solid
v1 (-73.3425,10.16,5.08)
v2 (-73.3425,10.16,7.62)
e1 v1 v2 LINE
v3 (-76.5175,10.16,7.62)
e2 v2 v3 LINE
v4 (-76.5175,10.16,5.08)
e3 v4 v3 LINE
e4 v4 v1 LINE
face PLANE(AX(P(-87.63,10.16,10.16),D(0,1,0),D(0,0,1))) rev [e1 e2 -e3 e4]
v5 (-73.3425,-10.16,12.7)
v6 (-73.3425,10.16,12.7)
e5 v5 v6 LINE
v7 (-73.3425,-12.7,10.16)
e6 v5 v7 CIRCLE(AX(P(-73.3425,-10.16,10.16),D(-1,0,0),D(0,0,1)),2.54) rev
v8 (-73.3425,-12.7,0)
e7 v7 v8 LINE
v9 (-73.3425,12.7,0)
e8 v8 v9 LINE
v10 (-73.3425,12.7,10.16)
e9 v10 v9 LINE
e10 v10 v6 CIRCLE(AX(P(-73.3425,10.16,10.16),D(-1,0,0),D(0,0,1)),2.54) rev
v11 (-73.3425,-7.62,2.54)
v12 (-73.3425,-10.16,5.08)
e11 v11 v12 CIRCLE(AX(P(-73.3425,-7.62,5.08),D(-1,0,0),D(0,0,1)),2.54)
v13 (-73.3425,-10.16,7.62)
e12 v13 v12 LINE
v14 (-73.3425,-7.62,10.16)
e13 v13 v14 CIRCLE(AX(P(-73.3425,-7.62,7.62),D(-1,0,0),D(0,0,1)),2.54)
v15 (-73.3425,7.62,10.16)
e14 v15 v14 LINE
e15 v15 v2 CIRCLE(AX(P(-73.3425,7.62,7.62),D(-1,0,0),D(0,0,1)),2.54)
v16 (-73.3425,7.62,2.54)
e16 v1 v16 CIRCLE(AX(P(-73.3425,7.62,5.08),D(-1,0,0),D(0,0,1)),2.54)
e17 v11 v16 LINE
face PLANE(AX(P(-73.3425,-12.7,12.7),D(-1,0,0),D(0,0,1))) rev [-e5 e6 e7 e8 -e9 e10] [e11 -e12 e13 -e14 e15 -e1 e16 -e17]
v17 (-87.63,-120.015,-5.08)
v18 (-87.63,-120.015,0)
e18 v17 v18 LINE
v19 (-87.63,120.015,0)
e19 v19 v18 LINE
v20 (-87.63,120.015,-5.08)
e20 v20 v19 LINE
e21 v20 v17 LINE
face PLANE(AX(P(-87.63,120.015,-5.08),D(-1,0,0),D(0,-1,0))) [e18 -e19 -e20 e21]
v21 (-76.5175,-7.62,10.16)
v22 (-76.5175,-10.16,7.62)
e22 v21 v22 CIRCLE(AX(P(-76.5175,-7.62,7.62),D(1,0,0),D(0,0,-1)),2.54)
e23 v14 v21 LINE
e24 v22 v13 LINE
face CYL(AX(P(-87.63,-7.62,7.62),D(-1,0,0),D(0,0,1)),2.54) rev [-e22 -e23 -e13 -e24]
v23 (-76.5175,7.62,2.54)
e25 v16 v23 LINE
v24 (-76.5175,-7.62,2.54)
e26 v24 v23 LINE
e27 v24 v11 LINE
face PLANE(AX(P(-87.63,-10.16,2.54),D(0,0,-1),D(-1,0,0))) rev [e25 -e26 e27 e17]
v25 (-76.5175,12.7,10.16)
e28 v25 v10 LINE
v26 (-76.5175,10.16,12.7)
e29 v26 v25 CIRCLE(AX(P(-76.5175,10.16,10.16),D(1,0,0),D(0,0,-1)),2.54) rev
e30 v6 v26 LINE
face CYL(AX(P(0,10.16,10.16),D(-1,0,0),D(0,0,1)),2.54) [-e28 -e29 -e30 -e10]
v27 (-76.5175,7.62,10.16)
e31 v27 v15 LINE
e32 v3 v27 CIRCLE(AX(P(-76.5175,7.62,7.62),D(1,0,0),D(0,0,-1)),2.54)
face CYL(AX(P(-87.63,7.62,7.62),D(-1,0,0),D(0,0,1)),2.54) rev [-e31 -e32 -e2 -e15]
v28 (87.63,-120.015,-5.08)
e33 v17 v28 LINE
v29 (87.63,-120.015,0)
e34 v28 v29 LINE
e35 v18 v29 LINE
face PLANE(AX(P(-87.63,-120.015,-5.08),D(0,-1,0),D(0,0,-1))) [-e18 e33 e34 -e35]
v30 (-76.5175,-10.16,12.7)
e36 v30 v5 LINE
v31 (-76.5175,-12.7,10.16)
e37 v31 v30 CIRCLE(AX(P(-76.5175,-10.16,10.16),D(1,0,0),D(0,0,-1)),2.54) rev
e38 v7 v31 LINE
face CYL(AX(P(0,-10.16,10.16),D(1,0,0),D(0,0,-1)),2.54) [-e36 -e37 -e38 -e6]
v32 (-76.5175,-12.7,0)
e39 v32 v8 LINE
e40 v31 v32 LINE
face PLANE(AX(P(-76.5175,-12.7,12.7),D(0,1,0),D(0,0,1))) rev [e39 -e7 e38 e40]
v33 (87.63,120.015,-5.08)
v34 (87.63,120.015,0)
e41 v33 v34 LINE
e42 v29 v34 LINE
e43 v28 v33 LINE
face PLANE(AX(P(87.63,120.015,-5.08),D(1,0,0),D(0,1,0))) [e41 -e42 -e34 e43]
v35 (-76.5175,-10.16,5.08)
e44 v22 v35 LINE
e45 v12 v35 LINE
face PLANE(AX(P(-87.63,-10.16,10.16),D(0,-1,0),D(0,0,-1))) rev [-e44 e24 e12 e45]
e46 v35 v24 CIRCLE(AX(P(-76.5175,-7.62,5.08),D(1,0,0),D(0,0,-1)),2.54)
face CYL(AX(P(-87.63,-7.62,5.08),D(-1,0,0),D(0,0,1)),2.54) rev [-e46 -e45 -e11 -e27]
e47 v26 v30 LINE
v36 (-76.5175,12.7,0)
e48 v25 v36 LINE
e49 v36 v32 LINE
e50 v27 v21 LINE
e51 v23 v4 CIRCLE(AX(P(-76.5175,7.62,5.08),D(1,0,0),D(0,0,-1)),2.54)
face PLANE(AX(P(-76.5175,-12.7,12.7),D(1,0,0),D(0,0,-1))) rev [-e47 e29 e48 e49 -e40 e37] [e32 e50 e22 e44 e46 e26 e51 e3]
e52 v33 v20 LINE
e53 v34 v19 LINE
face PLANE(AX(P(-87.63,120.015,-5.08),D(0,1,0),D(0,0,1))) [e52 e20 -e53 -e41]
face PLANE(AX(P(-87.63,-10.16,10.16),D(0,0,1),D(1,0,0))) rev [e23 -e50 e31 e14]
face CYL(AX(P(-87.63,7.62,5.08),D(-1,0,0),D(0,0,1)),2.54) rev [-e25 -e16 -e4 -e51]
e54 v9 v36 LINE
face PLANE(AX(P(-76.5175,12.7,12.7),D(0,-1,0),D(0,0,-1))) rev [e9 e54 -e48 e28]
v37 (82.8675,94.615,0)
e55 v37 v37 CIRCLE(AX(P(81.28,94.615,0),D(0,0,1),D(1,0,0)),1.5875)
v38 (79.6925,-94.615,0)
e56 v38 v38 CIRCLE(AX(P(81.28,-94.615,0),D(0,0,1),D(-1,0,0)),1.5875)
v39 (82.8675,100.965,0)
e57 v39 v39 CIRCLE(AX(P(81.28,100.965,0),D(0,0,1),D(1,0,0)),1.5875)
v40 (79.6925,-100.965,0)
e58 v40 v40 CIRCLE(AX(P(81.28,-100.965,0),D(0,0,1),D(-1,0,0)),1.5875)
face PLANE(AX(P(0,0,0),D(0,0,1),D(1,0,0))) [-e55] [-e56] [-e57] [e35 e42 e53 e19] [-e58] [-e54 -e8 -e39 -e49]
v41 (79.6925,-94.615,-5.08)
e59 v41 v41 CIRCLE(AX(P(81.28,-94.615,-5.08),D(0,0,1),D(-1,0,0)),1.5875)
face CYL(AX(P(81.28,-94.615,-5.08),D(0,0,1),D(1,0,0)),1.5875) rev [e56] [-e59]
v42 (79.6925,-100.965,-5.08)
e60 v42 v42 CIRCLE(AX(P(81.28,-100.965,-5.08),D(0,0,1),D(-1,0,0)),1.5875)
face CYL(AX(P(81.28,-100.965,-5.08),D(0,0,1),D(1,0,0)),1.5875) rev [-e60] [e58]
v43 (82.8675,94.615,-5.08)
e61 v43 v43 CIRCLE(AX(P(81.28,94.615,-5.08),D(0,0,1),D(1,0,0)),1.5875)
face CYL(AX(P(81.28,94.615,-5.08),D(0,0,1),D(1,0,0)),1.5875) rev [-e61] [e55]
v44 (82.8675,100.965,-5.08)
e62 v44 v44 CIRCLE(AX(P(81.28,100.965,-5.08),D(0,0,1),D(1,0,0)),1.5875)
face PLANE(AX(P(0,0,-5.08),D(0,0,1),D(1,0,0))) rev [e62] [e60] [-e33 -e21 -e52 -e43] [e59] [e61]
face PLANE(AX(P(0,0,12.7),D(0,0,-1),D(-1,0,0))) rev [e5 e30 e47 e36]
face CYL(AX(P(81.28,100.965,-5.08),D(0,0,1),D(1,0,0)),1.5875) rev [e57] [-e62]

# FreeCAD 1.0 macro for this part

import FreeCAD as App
import Part
import Sketcher
from FreeCAD import Vector
Q = App.Units.Quantity


def edges_at(feature, points):
    """Names of the edges that pass closest to the given points."""
    edges = feature.Shape.Edges
    near = lambda p: min(range(len(edges)), key=lambda i: edges[i].distToShape(Part.Vertex(*p))[0])
    return sorted({f"Edge{near(p) + 1}" for p in points})

doc = App.newDocument("Part")
body = doc.addObject("PartDesign::Body", "Body")

sketch1 = body.newObject("Sketcher::SketchObject", "Sketch")
sketch1.AttachmentSupport = (doc.getObject("XY_Plane"), [""])
sketch1.MapMode = "FlatFace"
sketch1.addGeometry(Part.LineSegment(Vector(-88, 120, 0), Vector(-88, -120, 0)), False)
sketch1.addGeometry(Part.LineSegment(Vector(-88, -120, 0), Vector(88, -120, 0)), False)
sketch1.addGeometry(Part.LineSegment(Vector(88, -120, 0), Vector(88, 120, 0)), False)
sketch1.addGeometry(Part.LineSegment(Vector(88, 120, 0), Vector(-88, 120, 0)), False)
sketch1.addConstraint(Sketcher.Constraint("Coincident", 0, 2, 1, 1))
sketch1.addConstraint(Sketcher.Constraint("Coincident", 1, 2, 2, 1))
sketch1.addConstraint(Sketcher.Constraint("Coincident", 2, 2, 3, 1))
sketch1.addConstraint(Sketcher.Constraint("Coincident", 3, 2, 0, 1))
sketch1.addConstraint(Sketcher.Constraint("Vertical", 0))
sketch1.addConstraint(Sketcher.Constraint("Horizontal", 1))
sketch1.addConstraint(Sketcher.Constraint("Vertical", 2))
sketch1.addConstraint(Sketcher.Constraint("Horizontal", 3))
sketch1.addConstraint(Sketcher.Constraint("Symmetric", 0, 2, 2, 2, -1, 1))
sketch1.addConstraint(Sketcher.Constraint("DistanceX", 1, 1, 1, 2, Q("6.9 in")))
sketch1.addConstraint(Sketcher.Constraint("DistanceY", 0, 2, 0, 1, Q("9.45 in")))
pad1 = body.newObject("PartDesign::Pad", "Pad")
pad1.Profile = sketch1
pad1.Length = Q("0.2 in")
pad1.Reversed = True

sketch2 = body.newObject("Sketcher::SketchObject", "Sketch001")
sketch2.AttachmentSupport = (doc.getObject("XY_Plane"), [""])
sketch2.MapMode = "FlatFace"
sketch2.addGeometry(Part.Circle(Vector(81.3, 101, 0), Vector(0, 0, 1), 1.6), False)
sketch2.addGeometry(Part.Circle(Vector(81.3, 94.6, 0), Vector(0, 0, 1), 1.6), False)
sketch2.addGeometry(Part.Circle(Vector(81.3, -94.6, 0), Vector(0, 0, 1), 1.6), False)
sketch2.addGeometry(Part.Circle(Vector(81.3, -101, 0), Vector(0, 0, 1), 1.6), False)
sketch2.addConstraint(Sketcher.Constraint("Equal", 0, 1))
sketch2.addConstraint(Sketcher.Constraint("Equal", 1, 2))
sketch2.addConstraint(Sketcher.Constraint("Equal", 2, 3))
sketch2.addConstraint(Sketcher.Constraint("Symmetric", 1, 3, 2, 3, -1))
sketch2.addConstraint(Sketcher.Constraint("Symmetric", 0, 3, 3, 3, -1))
sketch2.addConstraint(Sketcher.Constraint("Vertical", 0, 3, 1, 3))
sketch2.addConstraint(Sketcher.Constraint("Diameter", 0, Q("0.125 in")))
sketch2.addConstraint(Sketcher.Constraint("DistanceX", -1, 1, 0, 3, Q("3.2 in")))
sketch2.addConstraint(Sketcher.Constraint("DistanceY", 2, 3, 0, 3, Q("7.7 in")))
sketch2.addConstraint(Sketcher.Constraint("DistanceY", 1, 3, 0, 3, Q("0.25 in")))
pocket1 = body.newObject("PartDesign::Pocket", "Pocket")
pocket1.Profile = sketch2
pocket1.Type = "ThroughAll"

sketch3 = body.newObject("Sketcher::SketchObject", "Sketch002")
sketch3.AttachmentSupport = (doc.getObject("XY_Plane"), [""])
sketch3.MapMode = "FlatFace"
sketch3.addGeometry(Part.LineSegment(Vector(-76.5, 12.7, 0), Vector(-76.5, -12.7, 0)), False)
sketch3.addGeometry(Part.LineSegment(Vector(-76.5, -12.7, 0), Vector(-73.3, -12.7, 0)), False)
sketch3.addGeometry(Part.LineSegment(Vector(-73.3, -12.7, 0), Vector(-73.3, 12.7, 0)), False)
sketch3.addGeometry(Part.LineSegment(Vector(-73.3, 12.7, 0), Vector(-76.5, 12.7, 0)), False)
sketch3.addConstraint(Sketcher.Constraint("Coincident", 0, 2, 1, 1))
sketch3.addConstraint(Sketcher.Constraint("Coincident", 1, 2, 2, 1))
sketch3.addConstraint(Sketcher.Constraint("Coincident", 2, 2, 3, 1))
sketch3.addConstraint(Sketcher.Constraint("Coincident", 3, 2, 0, 1))
sketch3.addConstraint(Sketcher.Constraint("Vertical", 0))
sketch3.addConstraint(Sketcher.Constraint("Horizontal", 1))
sketch3.addConstraint(Sketcher.Constraint("Vertical", 2))
sketch3.addConstraint(Sketcher.Constraint("Horizontal", 3))
sketch3.addConstraint(Sketcher.Constraint("DistanceY", 0, 2, 0, 1, Q("1 in")))
sketch3.addConstraint(Sketcher.Constraint("DistanceY", 0, 2, -1, 1, Q("0.5 in")))
sketch3.addConstraint(Sketcher.Constraint("DistanceX", 1, 1, 1, 2, Q("0.125 in")))
sketch3.addConstraint(Sketcher.Constraint("DistanceX", 0, 2, -1, 1, Q("3.0125 in")))
pad2 = body.newObject("PartDesign::Pad", "Pad001")
pad2.Profile = sketch3
pad2.Length = Q("0.5 in")

sketch4 = body.newObject("Sketcher::SketchObject", "Sketch003")
sketch4.AttachmentSupport = (doc.getObject("YZ_Plane"), [""])
sketch4.MapMode = "FlatFace"
sketch4.AttachmentOffset = App.Placement(Vector(0, 0, -2.8875 * 25.4), App.Rotation())
sketch4.addGeometry(Part.LineSegment(Vector(10, 10, 0), Vector(-10, 10, 0)), False)
sketch4.addGeometry(Part.LineSegment(Vector(-10, 10, 0), Vector(-10, 3, 0)), False)
sketch4.addGeometry(Part.LineSegment(Vector(-10, 3, 0), Vector(10, 3, 0)), False)
sketch4.addGeometry(Part.LineSegment(Vector(10, 3, 0), Vector(10, 10, 0)), False)
sketch4.addConstraint(Sketcher.Constraint("Coincident", 0, 2, 1, 1))
sketch4.addConstraint(Sketcher.Constraint("Coincident", 1, 2, 2, 1))
sketch4.addConstraint(Sketcher.Constraint("Coincident", 2, 2, 3, 1))
sketch4.addConstraint(Sketcher.Constraint("Coincident", 3, 2, 0, 1))
sketch4.addConstraint(Sketcher.Constraint("Horizontal", 0))
sketch4.addConstraint(Sketcher.Constraint("Vertical", 1))
sketch4.addConstraint(Sketcher.Constraint("Horizontal", 2))
sketch4.addConstraint(Sketcher.Constraint("Vertical", 3))
sketch4.addConstraint(Sketcher.Constraint("DistanceX", 0, 2, 0, 1, Q("0.8 in")))
sketch4.addConstraint(Sketcher.Constraint("DistanceY", 1, 2, 1, 1, Q("0.3 in")))
sketch4.addConstraint(Sketcher.Constraint("DistanceX", 0, 2, -1, 1, Q("0.4 in")))
sketch4.addConstraint(Sketcher.Constraint("DistanceY", -1, 1, 0, 2, Q("0.4 in")))
pocket2 = body.newObject("PartDesign::Pocket", "Pocket001")
pocket2.Profile = sketch4
pocket2.Type = "ThroughAll"
doc.recompute()

fillet = body.newObject("PartDesign::Fillet", "Fillet")
fillet.Base = (pocket2, edges_at(pocket2, [
    (-74.93, 12.7, 12.7),
    (-74.93, -12.7, 12.7),
    (-74.93, 10.16, 2.54),
    (-74.93, -10.16, 2.54),
    (-74.93, -10.16, 10.16),
    (-74.93, 10.16, 10.16),
]))
fillet.Radius = Q("0.1 in")

doc.recompute()
